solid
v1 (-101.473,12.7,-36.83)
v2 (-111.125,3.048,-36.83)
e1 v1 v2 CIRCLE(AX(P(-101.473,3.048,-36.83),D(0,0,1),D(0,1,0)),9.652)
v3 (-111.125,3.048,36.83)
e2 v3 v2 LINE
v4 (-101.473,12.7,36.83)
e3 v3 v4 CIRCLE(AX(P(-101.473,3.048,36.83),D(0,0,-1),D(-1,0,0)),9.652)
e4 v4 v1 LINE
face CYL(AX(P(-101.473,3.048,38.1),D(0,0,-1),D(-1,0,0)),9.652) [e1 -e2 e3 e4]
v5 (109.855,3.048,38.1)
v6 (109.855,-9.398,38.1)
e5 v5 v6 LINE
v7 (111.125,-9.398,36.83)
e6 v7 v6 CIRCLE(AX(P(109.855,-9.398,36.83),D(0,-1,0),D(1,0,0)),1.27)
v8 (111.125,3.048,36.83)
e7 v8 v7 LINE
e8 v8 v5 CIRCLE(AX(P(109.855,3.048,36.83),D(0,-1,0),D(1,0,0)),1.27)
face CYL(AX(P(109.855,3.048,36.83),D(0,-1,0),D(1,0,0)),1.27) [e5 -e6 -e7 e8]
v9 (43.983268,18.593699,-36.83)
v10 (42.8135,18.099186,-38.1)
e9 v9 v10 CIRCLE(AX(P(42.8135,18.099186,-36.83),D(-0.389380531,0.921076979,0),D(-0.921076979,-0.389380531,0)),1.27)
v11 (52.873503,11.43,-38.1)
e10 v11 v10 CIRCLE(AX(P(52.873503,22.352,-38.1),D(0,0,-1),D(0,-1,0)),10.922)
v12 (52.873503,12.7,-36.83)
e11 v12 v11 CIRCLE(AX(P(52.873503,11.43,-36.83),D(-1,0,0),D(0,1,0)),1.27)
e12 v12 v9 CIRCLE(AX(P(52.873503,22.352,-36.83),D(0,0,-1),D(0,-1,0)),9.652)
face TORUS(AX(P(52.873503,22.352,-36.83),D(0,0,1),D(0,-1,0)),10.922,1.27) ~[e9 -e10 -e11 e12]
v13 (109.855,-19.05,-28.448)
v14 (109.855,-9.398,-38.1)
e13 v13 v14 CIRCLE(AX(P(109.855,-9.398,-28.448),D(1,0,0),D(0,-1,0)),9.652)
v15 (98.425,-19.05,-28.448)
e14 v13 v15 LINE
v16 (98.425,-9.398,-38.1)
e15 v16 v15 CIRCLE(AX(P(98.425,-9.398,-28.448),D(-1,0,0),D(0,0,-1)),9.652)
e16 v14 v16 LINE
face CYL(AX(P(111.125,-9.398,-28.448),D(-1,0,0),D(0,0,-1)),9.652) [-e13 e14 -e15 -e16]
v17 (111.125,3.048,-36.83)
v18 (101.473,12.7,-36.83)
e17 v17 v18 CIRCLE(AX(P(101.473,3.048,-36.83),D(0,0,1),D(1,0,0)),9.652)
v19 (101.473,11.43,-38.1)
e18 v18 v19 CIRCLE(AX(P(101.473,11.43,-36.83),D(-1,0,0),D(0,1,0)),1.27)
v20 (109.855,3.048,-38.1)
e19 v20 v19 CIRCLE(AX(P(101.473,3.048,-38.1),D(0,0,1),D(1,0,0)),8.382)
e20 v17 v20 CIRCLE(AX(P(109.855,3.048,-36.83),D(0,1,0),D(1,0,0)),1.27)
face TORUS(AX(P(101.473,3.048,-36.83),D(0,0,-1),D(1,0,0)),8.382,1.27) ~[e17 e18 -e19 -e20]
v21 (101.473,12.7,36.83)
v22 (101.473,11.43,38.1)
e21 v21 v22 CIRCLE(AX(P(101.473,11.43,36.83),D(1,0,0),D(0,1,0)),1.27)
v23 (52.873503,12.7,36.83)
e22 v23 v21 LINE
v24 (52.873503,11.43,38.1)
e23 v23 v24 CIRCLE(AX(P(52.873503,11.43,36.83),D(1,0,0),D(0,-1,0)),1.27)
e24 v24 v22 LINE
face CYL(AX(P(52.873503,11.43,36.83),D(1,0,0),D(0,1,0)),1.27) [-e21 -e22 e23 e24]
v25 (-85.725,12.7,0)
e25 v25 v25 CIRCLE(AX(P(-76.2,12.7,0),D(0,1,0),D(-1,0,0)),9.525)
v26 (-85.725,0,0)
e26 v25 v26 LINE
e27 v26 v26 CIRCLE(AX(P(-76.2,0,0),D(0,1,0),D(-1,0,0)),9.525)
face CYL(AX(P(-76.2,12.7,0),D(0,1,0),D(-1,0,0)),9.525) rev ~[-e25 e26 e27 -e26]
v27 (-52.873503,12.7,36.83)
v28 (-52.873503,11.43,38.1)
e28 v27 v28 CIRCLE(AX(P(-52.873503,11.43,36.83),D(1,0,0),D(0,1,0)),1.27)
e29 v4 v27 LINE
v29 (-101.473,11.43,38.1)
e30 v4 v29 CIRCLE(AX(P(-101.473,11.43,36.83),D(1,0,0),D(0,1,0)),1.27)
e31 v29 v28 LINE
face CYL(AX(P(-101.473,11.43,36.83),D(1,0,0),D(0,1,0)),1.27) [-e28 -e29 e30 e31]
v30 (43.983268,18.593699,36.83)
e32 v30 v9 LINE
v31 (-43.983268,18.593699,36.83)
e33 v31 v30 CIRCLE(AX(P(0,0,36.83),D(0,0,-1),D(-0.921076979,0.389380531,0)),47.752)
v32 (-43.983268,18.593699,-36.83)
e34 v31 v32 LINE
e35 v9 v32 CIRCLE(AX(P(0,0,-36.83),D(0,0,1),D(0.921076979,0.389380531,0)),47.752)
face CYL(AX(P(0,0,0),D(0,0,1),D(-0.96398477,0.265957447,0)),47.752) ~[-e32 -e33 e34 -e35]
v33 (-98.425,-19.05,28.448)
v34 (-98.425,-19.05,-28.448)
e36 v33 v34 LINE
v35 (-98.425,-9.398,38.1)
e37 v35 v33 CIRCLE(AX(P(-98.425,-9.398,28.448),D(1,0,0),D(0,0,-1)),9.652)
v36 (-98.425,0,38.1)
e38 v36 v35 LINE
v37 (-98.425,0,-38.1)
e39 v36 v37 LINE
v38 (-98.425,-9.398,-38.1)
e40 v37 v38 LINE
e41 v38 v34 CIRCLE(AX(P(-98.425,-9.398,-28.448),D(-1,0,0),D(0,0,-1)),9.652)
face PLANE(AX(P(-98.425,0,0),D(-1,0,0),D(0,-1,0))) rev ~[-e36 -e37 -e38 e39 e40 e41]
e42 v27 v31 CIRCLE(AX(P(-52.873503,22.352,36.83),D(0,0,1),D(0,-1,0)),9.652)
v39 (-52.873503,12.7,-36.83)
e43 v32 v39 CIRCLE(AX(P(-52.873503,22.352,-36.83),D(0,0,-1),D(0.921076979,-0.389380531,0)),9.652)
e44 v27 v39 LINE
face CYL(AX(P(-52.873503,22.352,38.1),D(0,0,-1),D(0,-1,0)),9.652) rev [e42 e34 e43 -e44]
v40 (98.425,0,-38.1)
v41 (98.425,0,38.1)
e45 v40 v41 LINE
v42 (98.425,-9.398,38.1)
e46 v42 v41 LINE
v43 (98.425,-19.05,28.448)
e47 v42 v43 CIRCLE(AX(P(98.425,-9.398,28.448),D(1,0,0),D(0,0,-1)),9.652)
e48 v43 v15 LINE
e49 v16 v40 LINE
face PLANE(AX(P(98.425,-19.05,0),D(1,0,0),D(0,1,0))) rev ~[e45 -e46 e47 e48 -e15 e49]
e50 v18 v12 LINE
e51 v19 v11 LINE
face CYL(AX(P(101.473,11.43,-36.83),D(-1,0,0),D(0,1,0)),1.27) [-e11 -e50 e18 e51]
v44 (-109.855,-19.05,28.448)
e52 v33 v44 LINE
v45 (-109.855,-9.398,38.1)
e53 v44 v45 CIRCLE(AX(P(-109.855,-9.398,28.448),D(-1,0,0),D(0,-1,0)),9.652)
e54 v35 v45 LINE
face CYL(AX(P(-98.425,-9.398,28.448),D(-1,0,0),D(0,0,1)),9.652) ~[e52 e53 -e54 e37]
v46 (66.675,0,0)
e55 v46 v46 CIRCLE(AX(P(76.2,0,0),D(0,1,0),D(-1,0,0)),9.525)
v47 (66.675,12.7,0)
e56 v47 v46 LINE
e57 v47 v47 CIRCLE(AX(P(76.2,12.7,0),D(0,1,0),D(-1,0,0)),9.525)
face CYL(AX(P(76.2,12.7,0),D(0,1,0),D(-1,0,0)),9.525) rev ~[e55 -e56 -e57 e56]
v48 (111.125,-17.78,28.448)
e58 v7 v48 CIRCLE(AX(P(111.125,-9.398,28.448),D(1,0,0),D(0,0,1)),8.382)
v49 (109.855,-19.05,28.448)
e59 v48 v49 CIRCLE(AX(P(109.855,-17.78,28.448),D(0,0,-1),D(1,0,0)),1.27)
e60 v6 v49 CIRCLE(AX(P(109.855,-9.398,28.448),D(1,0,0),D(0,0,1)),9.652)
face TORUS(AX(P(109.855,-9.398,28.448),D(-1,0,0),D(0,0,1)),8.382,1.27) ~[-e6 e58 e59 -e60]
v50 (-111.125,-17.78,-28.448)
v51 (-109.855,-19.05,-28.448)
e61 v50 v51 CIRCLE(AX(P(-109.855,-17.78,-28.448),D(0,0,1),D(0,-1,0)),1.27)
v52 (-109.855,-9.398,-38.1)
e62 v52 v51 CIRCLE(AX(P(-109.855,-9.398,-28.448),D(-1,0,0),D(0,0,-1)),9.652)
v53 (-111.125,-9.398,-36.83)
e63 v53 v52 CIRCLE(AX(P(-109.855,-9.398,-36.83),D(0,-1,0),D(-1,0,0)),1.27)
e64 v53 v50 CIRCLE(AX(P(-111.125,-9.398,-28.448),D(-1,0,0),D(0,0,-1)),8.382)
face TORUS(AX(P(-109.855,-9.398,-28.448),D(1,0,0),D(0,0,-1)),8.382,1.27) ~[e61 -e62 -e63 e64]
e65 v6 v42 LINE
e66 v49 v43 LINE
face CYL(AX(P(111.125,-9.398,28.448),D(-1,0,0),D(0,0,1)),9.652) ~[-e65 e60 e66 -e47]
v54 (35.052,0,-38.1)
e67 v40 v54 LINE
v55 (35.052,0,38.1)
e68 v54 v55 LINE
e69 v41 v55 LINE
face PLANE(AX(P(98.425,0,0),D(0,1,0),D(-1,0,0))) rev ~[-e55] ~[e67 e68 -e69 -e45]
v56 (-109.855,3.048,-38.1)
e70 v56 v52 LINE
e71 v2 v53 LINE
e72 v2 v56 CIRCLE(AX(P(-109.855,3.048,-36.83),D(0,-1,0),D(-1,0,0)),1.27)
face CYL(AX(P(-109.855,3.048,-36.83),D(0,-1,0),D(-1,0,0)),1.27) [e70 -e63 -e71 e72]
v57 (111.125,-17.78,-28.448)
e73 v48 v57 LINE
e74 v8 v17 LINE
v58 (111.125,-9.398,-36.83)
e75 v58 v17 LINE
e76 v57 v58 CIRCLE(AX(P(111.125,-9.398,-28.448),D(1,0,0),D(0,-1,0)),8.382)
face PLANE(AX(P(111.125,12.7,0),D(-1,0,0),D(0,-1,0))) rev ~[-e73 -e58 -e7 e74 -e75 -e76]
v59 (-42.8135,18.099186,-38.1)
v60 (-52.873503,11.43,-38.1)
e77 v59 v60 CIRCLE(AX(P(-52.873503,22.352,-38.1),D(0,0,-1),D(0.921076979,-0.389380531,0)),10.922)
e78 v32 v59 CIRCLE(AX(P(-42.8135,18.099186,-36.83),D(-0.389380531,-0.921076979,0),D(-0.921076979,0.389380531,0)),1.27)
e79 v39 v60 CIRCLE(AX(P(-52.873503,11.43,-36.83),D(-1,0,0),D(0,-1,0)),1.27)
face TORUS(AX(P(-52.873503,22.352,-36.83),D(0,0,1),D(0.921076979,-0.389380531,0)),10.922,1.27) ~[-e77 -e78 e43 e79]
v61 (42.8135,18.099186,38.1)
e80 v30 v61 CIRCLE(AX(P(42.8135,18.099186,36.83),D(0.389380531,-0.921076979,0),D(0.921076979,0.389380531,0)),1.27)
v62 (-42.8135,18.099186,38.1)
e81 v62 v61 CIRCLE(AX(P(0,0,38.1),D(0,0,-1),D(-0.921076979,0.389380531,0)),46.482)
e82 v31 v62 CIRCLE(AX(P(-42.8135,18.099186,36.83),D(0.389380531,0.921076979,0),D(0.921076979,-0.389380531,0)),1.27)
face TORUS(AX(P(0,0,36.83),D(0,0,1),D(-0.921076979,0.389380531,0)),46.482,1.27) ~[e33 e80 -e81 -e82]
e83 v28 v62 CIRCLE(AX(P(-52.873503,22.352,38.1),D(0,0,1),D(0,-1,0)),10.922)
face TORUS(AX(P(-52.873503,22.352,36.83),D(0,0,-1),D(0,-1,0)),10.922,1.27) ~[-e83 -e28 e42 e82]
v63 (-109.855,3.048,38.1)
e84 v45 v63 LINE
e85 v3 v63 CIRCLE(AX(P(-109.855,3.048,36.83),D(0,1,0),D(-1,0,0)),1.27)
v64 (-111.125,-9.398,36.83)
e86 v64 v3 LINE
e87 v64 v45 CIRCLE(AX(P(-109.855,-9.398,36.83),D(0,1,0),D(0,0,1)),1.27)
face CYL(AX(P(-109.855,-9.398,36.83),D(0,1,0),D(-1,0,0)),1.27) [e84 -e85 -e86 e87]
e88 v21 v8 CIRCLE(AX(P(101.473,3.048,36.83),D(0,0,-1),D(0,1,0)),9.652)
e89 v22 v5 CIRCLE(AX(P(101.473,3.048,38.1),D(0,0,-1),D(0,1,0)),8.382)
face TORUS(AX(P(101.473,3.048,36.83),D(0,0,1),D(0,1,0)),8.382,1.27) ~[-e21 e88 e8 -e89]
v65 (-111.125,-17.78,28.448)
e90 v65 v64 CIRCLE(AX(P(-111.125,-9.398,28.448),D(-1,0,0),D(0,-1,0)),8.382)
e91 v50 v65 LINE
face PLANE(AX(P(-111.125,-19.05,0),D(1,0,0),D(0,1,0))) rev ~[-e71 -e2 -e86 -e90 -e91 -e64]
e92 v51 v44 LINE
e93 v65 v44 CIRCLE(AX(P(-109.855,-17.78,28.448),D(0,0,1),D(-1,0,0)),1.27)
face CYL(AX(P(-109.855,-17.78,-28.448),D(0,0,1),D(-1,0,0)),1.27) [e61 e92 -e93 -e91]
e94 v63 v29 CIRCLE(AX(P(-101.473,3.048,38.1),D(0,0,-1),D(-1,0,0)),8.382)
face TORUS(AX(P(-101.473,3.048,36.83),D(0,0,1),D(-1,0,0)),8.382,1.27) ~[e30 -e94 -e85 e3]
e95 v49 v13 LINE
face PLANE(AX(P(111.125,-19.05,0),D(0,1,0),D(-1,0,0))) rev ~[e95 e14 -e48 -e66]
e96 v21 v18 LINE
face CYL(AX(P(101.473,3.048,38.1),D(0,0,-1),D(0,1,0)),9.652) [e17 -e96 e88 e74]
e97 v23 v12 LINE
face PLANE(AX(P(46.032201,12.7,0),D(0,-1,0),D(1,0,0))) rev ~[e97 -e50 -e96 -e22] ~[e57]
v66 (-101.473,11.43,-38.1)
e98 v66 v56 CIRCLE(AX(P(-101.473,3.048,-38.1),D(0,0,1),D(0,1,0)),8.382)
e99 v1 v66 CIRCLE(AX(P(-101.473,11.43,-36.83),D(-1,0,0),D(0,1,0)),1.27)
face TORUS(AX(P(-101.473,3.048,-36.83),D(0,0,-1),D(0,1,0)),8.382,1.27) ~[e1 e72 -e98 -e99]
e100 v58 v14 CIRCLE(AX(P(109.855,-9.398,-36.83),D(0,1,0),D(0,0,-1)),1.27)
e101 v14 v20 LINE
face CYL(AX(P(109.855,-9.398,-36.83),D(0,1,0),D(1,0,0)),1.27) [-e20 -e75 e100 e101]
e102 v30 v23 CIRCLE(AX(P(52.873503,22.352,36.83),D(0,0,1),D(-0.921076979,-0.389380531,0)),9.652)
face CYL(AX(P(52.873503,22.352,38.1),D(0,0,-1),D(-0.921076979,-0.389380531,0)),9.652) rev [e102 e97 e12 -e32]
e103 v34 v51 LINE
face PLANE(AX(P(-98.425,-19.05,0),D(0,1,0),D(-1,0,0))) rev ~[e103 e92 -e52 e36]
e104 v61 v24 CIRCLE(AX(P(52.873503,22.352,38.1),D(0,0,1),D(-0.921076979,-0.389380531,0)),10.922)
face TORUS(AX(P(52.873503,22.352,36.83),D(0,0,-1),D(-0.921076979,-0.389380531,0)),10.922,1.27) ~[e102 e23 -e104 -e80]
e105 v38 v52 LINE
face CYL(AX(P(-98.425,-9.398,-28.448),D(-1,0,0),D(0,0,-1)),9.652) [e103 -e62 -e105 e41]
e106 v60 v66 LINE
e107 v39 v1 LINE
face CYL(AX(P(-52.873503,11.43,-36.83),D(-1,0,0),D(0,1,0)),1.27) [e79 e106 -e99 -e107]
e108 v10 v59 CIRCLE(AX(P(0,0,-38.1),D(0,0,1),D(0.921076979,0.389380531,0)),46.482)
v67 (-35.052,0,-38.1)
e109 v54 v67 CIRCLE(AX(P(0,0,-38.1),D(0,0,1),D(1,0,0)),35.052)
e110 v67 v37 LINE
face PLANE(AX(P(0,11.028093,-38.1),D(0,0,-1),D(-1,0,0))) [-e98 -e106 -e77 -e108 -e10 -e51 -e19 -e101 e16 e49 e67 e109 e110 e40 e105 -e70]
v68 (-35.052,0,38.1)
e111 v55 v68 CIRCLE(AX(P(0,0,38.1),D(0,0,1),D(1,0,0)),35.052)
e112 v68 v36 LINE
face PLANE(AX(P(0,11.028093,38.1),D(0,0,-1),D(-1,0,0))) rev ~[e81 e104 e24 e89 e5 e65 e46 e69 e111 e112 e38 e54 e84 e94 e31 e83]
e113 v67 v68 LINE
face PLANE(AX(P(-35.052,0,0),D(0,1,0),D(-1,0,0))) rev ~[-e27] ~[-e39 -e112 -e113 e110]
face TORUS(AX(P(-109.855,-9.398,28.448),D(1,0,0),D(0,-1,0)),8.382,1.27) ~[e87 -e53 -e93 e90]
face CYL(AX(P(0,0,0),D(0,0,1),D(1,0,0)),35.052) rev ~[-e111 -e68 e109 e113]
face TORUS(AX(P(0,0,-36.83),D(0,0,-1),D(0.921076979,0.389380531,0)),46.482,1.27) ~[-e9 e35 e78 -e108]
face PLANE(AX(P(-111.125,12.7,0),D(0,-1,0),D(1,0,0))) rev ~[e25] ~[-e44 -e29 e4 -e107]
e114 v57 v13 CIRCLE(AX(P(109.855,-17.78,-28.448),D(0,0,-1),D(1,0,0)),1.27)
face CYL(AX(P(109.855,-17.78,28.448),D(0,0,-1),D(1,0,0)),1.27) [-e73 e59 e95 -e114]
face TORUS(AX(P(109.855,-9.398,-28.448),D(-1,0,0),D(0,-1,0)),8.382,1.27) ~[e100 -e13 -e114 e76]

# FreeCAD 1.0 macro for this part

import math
import FreeCAD as App
import Part
import Sketcher
Q = App.Units.Quantity


def edges_at(feature, points):
    """Names of the edges that pass closest to the given points."""
    edges = feature.Shape.Edges
    near = lambda p: min(range(len(edges)), key=lambda i: edges[i].distToShape(Part.Vertex(*p))[0])
    return sorted({f"Edge{near(p) + 1}" for p in points})

doc = App.newDocument("Part")
body = doc.addObject("PartDesign::Body", "Body")

sketch1 = body.newObject("Sketcher::SketchObject", "Sketch")
sketch1.AttachmentSupport = (doc.getObject("XY_Plane"), [""])
sketch1.MapMode = "FlatFace"
sketch1.addGeometry(Part.LineSegment(App.Vector(-98, 0, 0), App.Vector(-35, 0, 0)), False)
sketch1.addGeometry(Part.ArcOfCircle(Part.Circle(App.Vector(0, 0, 0), App.Vector(0, 0, 1), 35), math.radians(0), math.radians(180)), False)
sketch1.addGeometry(Part.LineSegment(App.Vector(35, 0, 0), App.Vector(98, 0, 0)), False)
sketch1.addGeometry(Part.LineSegment(App.Vector(98, 0, 0), App.Vector(98, -19, 0)), False)
sketch1.addGeometry(Part.LineSegment(App.Vector(98, -19, 0), App.Vector(111, -19, 0)), False)
sketch1.addGeometry(Part.LineSegment(App.Vector(111, -19, 0), App.Vector(111, 13, 0)), False)
sketch1.addGeometry(Part.LineSegment(App.Vector(111, 13, 0), App.Vector(46, 13, 0)), False)
sketch1.addGeometry(Part.ArcOfCircle(Part.Circle(App.Vector(0, 0, 0), App.Vector(0, 0, 1), 48), math.radians(15), math.radians(165)), False)
sketch1.addGeometry(Part.LineSegment(App.Vector(-46, 13, 0), App.Vector(-111, 13, 0)), False)
sketch1.addGeometry(Part.LineSegment(App.Vector(-111, 13, 0), App.Vector(-111, -19, 0)), False)
sketch1.addGeometry(Part.LineSegment(App.Vector(-111, -19, 0), App.Vector(-98, -19, 0)), False)
sketch1.addGeometry(Part.LineSegment(App.Vector(-98, -19, 0), App.Vector(-98, 0, 0)), False)
sketch1.addConstraint(Sketcher.Constraint("Coincident", 0, 2, 1, 2))
sketch1.addConstraint(Sketcher.Constraint("Coincident", 1, 1, 2, 1))
sketch1.addConstraint(Sketcher.Constraint("Coincident", 2, 2, 3, 1))
sketch1.addConstraint(Sketcher.Constraint("Coincident", 3, 2, 4, 1))
sketch1.addConstraint(Sketcher.Constraint("Coincident", 4, 2, 5, 1))
sketch1.addConstraint(Sketcher.Constraint("Coincident", 5, 2, 6, 1))
sketch1.addConstraint(Sketcher.Constraint("Coincident", 6, 2, 7, 1))
sketch1.addConstraint(Sketcher.Constraint("Coincident", 7, 2, 8, 1))
sketch1.addConstraint(Sketcher.Constraint("Coincident", 8, 2, 9, 1))
sketch1.addConstraint(Sketcher.Constraint("Coincident", 9, 2, 10, 1))
sketch1.addConstraint(Sketcher.Constraint("Coincident", 10, 2, 11, 1))
sketch1.addConstraint(Sketcher.Constraint("Coincident", 11, 2, 0, 1))
sketch1.addConstraint(Sketcher.Constraint("Horizontal", 0))
sketch1.addConstraint(Sketcher.Constraint("Horizontal", 2))
sketch1.addConstraint(Sketcher.Constraint("Vertical", 3))
sketch1.addConstraint(Sketcher.Constraint("Horizontal", 4))
sketch1.addConstraint(Sketcher.Constraint("Vertical", 5))
sketch1.addConstraint(Sketcher.Constraint("Horizontal", 6))
sketch1.addConstraint(Sketcher.Constraint("Horizontal", 8))
sketch1.addConstraint(Sketcher.Constraint("Vertical", 9))
sketch1.addConstraint(Sketcher.Constraint("Horizontal", 10))
sketch1.addConstraint(Sketcher.Constraint("Vertical", 11))
sketch1.addConstraint(Sketcher.Constraint("Coincident", 1, 3, -1, 1))
sketch1.addConstraint(Sketcher.Constraint("Coincident", 7, 3, -1, 1))
sketch1.addConstraint(Sketcher.Constraint("Symmetric", 2, 2, 11, 2, -1, 1))
sketch1.addConstraint(Sketcher.Constraint("Symmetric", 5, 2, 8, 2, -2))
sketch1.addConstraint(Sketcher.Constraint("PointOnObject", 0, 2, -1))
sketch1.addConstraint(Sketcher.Constraint("Horizontal", 4, 2, 9, 2))
sketch1.addConstraint(Sketcher.Constraint("Radius", 1, Q("1.38 in")))
sketch1.addConstraint(Sketcher.Constraint("Radius", 7, Q("1.88 in")))
sketch1.addConstraint(Sketcher.Constraint("DistanceX", 4, 1, 4, 2, Q("0.5 in")))
sketch1.addConstraint(Sketcher.Constraint("DistanceY", 3, 2, 3, 1, Q("0.75 in")))
sketch1.addConstraint(Sketcher.Constraint("DistanceY", 5, 1, 5, 2, Q("1.25 in")))
sketch1.addConstraint(Sketcher.Constraint("DistanceX", 0, 1, 0, 2, Q("2.495 in")))
pad1 = body.newObject("PartDesign::Pad", "Pad")
pad1.Profile = sketch1
pad1.Length = Q("3 in")
pad1.Midplane = True

sketch2 = body.newObject("Sketcher::SketchObject", "Sketch001")
sketch2.AttachmentSupport = (doc.getObject("XZ_Plane"), [""])
sketch2.MapMode = "FlatFace"
sketch2.AttachmentOffset = App.Placement(App.Vector(0, 0, -0.5 * 25.4), App.Rotation())
sketch2.addGeometry(Part.Circle(App.Vector(-76, 0, 0), App.Vector(0, 0, 1), 10), False)
sketch2.addGeometry(Part.Circle(App.Vector(76, 0, 0), App.Vector(0, 0, 1), 10), False)
sketch2.addConstraint(Sketcher.Constraint("Equal", 0, 1))
sketch2.addConstraint(Sketcher.Constraint("Symmetric", 0, 3, 1, 3, -1, 1))
sketch2.addConstraint(Sketcher.Constraint("PointOnObject", 0, 3, -1))
sketch2.addConstraint(Sketcher.Constraint("Diameter", 0, Q("0.75 in")))
sketch2.addConstraint(Sketcher.Constraint("DistanceX", 0, 3, -1, 1, Q("3 in")))
pocket1 = body.newObject("PartDesign::Pocket", "Pocket")
pocket1.Profile = sketch2
pocket1.Type = "ThroughAll"
pocket1.Reversed = True
doc.recompute()

fillet = body.newObject("PartDesign::Fillet", "Fillet")
fillet.Base = (pocket1, edges_at(pocket1, [
    (-104.775, -19.05, -38.1),
    (104.775, -19.05, -38.1),
    (104.775, -19.05, 38.1),
    (-111.125, 12.7, 0),
    (-46.032, 12.7, 0),
    (46.032, 12.7, 0),
    (111.125, 12.7, 0),
    (-104.775, -19.05, 38.1),
]))
fillet.Radius = Q("0.38 in")
doc.recompute()

fillet2 = body.newObject("PartDesign::Fillet", "Fillet001")
fillet2.Base = (fillet, edges_at(fillet, [
    (111.125, -19.05, 0),
    (111.125, -3.175, -38.1),
    (111.125, -3.175, 38.1),
    (111.125, -16.223, 35.273),
    (111.125, -16.223, -35.273),
    (-111.125, -3.175, -38.1),
    (-77.173, 12.7, -38.1),
    (0, 47.752, -38.1),
    (77.173, 12.7, -38.1),
    (108.298, 9.873, -38.1),
    (-108.298, 9.873, -38.1),
    (-111.125, -19.05, 0),
    (-111.125, -3.175, 38.1),
    (-111.125, -16.223, 35.273),
    (-111.125, -16.223, -35.273),
    (-77.173, 12.7, 38.1),
    (0, 47.752, 38.1),
    (77.173, 12.7, 38.1),
    (108.298, 9.873, 38.1),
    (-108.298, 9.873, 38.1),
    (-47.54, 14.307, -38.1),
    (-47.54, 14.307, 38.1),
    (47.54, 14.307, -38.1),
    (47.54, 14.307, 38.1),
]))
fillet2.Radius = Q("0.05 in")

doc.recompute()
